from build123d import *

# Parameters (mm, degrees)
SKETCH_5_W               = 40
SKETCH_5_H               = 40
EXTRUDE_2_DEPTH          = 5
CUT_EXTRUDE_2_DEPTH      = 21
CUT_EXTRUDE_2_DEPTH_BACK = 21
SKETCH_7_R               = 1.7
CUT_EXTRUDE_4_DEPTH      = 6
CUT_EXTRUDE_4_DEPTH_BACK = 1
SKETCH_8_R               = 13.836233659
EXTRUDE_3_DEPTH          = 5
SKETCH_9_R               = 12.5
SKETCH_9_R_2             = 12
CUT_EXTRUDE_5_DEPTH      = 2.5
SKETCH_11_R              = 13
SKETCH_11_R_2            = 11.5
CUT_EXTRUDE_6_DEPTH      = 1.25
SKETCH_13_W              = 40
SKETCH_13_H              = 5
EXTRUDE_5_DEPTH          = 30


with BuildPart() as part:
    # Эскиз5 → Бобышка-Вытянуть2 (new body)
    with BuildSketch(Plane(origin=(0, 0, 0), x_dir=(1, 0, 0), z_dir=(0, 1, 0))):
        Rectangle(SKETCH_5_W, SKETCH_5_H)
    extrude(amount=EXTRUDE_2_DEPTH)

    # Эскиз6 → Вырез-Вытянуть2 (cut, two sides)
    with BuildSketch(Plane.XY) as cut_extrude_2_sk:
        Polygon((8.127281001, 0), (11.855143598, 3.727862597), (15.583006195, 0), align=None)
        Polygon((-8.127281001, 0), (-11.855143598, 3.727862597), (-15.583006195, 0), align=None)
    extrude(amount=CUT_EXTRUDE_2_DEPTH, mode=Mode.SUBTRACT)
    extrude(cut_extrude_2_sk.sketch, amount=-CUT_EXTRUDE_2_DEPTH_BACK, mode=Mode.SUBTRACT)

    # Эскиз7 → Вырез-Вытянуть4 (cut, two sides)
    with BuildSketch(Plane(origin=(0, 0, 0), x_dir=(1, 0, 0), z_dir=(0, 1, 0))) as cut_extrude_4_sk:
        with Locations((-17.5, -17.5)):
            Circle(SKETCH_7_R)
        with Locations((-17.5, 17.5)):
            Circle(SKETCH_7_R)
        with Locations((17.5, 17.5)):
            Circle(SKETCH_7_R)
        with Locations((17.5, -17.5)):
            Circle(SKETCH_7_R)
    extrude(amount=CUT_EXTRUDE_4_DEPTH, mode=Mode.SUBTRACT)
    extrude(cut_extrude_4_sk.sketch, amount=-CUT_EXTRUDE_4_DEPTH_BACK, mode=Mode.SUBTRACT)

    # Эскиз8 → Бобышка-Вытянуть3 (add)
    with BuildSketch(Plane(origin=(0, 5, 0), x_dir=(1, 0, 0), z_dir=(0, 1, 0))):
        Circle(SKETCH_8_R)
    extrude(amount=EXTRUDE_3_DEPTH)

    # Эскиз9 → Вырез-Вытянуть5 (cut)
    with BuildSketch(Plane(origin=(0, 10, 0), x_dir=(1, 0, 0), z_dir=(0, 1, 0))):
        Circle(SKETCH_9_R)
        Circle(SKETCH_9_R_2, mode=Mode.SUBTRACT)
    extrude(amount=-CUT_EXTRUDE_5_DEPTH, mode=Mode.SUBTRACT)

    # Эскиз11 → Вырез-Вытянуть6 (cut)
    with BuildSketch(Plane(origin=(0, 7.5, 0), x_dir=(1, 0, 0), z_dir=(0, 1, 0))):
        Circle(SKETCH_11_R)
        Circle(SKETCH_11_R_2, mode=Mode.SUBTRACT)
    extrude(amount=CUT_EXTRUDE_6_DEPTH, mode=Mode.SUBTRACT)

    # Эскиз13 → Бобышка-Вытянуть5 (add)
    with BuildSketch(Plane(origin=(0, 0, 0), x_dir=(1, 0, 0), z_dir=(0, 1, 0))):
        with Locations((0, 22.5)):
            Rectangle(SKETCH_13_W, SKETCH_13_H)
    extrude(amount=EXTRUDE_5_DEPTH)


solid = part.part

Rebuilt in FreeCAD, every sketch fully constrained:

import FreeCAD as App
import Part
import Sketcher
Q = App.Units.Quantity

doc = App.newDocument("Part")
body = doc.addObject("PartDesign::Body", "Body")

sketch1 = body.newObject("Sketcher::SketchObject", "Sketch")
sketch1.AttachmentSupport = (doc.getObject("XZ_Plane"), [""])
sketch1.MapMode = "FlatFace"
sketch1.addGeometry([
    Part.LineSegment(App.Vector(-20, -20, 0), App.Vector(-20, 20, 0)),
    Part.LineSegment(App.Vector(-20, 20, 0), App.Vector(20, 20, 0)),
    Part.LineSegment(App.Vector(20, 20, 0), App.Vector(20, -20, 0)),
    Part.LineSegment(App.Vector(20, -20, 0), App.Vector(-20, -20, 0)),
], False)
sketch1.addConstraint([
    Sketcher.Constraint("Coincident", 0, 2, 1, 1),
    Sketcher.Constraint("Coincident", 1, 2, 2, 1),
    Sketcher.Constraint("Coincident", 2, 2, 3, 1),
    Sketcher.Constraint("Coincident", 3, 2, 0, 1),
    Sketcher.Constraint("Vertical", 0),
    Sketcher.Constraint("Horizontal", 1),
    Sketcher.Constraint("Vertical", 2),
    Sketcher.Constraint("Horizontal", 3),
    Sketcher.Constraint("Symmetric", 0, 2, 2, 2, -1, 1),
    Sketcher.Constraint("Equal", 3, 0),
    Sketcher.Constraint("DistanceX", 1, 1, 1, 2, Q("40 mm")),
])
pad1 = body.newObject("PartDesign::Pad", "Pad")
pad1.Profile = sketch1
pad1.Length = 5
pad1.Reversed = True

sketch2 = body.newObject("Sketcher::SketchObject", "Sketch001")
sketch2.AttachmentSupport = (doc.getObject("XY_Plane"), [""])
sketch2.MapMode = "FlatFace"
sketch2.addGeometry([
    Part.LineSegment(App.Vector(11.855144, 3.727863, 0), App.Vector(8.127281, 0, 0)),
    Part.LineSegment(App.Vector(8.127281, 0, 0), App.Vector(15.583006, 0, 0)),
    Part.LineSegment(App.Vector(15.583006, 0, 0), App.Vector(11.855144, 3.727863, 0)),
    Part.LineSegment(App.Vector(-8.127281, 0, 0), App.Vector(-11.855144, 3.727863, 0)),
    Part.LineSegment(App.Vector(-11.855144, 3.727863, 0), App.Vector(-15.583006, 0, 0)),
    Part.LineSegment(App.Vector(-15.583006, 0, 0), App.Vector(-8.127281, 0, 0)),
], False)
sketch2.addConstraint([
    Sketcher.Constraint("Coincident", 0, 2, 1, 1),
    Sketcher.Constraint("Coincident", 1, 2, 2, 1),
    Sketcher.Constraint("Coincident", 2, 2, 0, 1),
    Sketcher.Constraint("Coincident", 3, 2, 4, 1),
    Sketcher.Constraint("Coincident", 4, 2, 5, 1),
    Sketcher.Constraint("Coincident", 5, 2, 3, 1),
    Sketcher.Constraint("Horizontal", 1),
    Sketcher.Constraint("Horizontal", 5),
    Sketcher.Constraint("Symmetric", 1, 2, 4, 2, -1, 1),
    Sketcher.Constraint("Symmetric", 2, 2, 3, 2, -2),
    Sketcher.Constraint("Symmetric", 0, 2, 5, 2, -2),
    Sketcher.Constraint("Perpendicular", 0, 2),
    Sketcher.Constraint("Parallel", 2, 3),
    Sketcher.Constraint("DistanceX", 1, 1, 1, 2, Q("7.455725 mm")),
    Sketcher.Constraint("DistanceX", -1, 1, 0, 2, Q("8.127281 mm")),
])
pocket1 = body.newObject("PartDesign::Pocket", "Pocket")
pocket1.Profile = sketch2
pocket1.Type = "ThroughAll"
pocket1.Midplane = True

sketch3 = body.newObject("Sketcher::SketchObject", "Sketch002")
sketch3.AttachmentSupport = (doc.getObject("XZ_Plane"), [""])
sketch3.MapMode = "FlatFace"
sketch3.addGeometry([
    Part.Circle(App.Vector(-17.5, 17.5, 0), App.Vector(0, 0, 1), 1.7),
    Part.Circle(App.Vector(-17.5, -17.5, 0), App.Vector(0, 0, 1), 1.7),
    Part.Circle(App.Vector(17.5, -17.5, 0), App.Vector(0, 0, 1), 1.7),
    Part.Circle(App.Vector(17.5, 17.5, 0), App.Vector(0, 0, 1), 1.7),
], False)
sketch3.addConstraint([
    Sketcher.Constraint("Equal", 0, 1),
    Sketcher.Constraint("Equal", 1, 2),
    Sketcher.Constraint("Equal", 2, 3),
    Sketcher.Constraint("Symmetric", 0, 3, 2, 3, -1, 1),
    Sketcher.Constraint("Symmetric", 1, 3, 3, 3, -1, 1),
    Sketcher.Constraint("Symmetric", 1, 3, 2, 3, -2),
    Sketcher.Constraint("Diameter", 0, Q("3.4 mm")),
    Sketcher.Constraint("DistanceY", 1, 3, 0, 3, Q("35 mm")),
    Sketcher.Constraint("DistanceX", 1, 3, 2, 3, Q("35 mm")),
])
pocket2 = body.newObject("PartDesign::Pocket", "Pocket001")
pocket2.Profile = sketch3
pocket2.Type = "ThroughAll"
pocket2.Midplane = True

sketch4 = body.newObject("Sketcher::SketchObject", "Sketch003")
sketch4.AttachmentSupport = (doc.getObject("XZ_Plane"), [""])
sketch4.MapMode = "FlatFace"
sketch4.AttachmentOffset = App.Placement(App.Vector(0, 0, -5), App.Rotation())
sketch4.addGeometry(Part.Circle(App.Vector(0, 0, 0), App.Vector(0, 0, 1), 13.836234), False)
sketch4.addConstraint([
    Sketcher.Constraint("Coincident", 0, 3, -1, 1),
    Sketcher.Constraint("Diameter", 0, Q("27.672467 mm")),
])
pad2 = body.newObject("PartDesign::Pad", "Pad001")
pad2.Profile = sketch4
pad2.Length = 5
pad2.Reversed = True

sketch5 = body.newObject("Sketcher::SketchObject", "Sketch004")
sketch5.AttachmentSupport = (doc.getObject("XZ_Plane"), [""])
sketch5.MapMode = "FlatFace"
sketch5.AttachmentOffset = App.Placement(App.Vector(0, 0, -10), App.Rotation())
sketch5.addGeometry([
    Part.Circle(App.Vector(0, 0, 0), App.Vector(0, 0, 1), 12.5),
    Part.Circle(App.Vector(0, 0, 0), App.Vector(0, 0, 1), 12),
], False)
sketch5.addConstraint([
    Sketcher.Constraint("Coincident", 0, 3, -1, 1),
    Sketcher.Constraint("Coincident", 1, 3, -1, 1),
    Sketcher.Constraint("Diameter", 0, Q("25 mm")),
    Sketcher.Constraint("Diameter", 1, Q("24 mm")),
])
pocket3 = body.newObject("PartDesign::Pocket", "Pocket002")
pocket3.Profile = sketch5
pocket3.Length = 2.5
pocket3.Reversed = True

sketch6 = body.newObject("Sketcher::SketchObject", "Sketch005")
sketch6.AttachmentSupport = (doc.getObject("XZ_Plane"), [""])
sketch6.MapMode = "FlatFace"
sketch6.AttachmentOffset = App.Placement(App.Vector(0, 0, -7.5), App.Rotation())
sketch6.addGeometry([
    Part.Circle(App.Vector(0, 0, 0), App.Vector(0, 0, 1), 13),
    Part.Circle(App.Vector(0, 0, 0), App.Vector(0, 0, 1), 11.5),
], False)
sketch6.addConstraint([
    Sketcher.Constraint("Coincident", 0, 3, -1, 1),
    Sketcher.Constraint("Coincident", 1, 3, -1, 1),
    Sketcher.Constraint("Diameter", 0, Q("26 mm")),
    Sketcher.Constraint("Diameter", 1, Q("23 mm")),
])
pocket4 = body.newObject("PartDesign::Pocket", "Pocket003")
pocket4.Profile = sketch6
pocket4.Length = 1.25

sketch7 = body.newObject("Sketcher::SketchObject", "Sketch006")
sketch7.AttachmentSupport = (doc.getObject("XZ_Plane"), [""])
sketch7.MapMode = "FlatFace"
sketch7.addGeometry([
    Part.LineSegment(App.Vector(-20, -25, 0), App.Vector(-20, -20, 0)),
    Part.LineSegment(App.Vector(-20, -20, 0), App.Vector(20, -20, 0)),
    Part.LineSegment(App.Vector(20, -20, 0), App.Vector(20, -25, 0)),
    Part.LineSegment(App.Vector(20, -25, 0), App.Vector(-20, -25, 0)),
], False)
sketch7.addConstraint([
    Sketcher.Constraint("Coincident", 0, 2, 1, 1),
    Sketcher.Constraint("Coincident", 1, 2, 2, 1),
    Sketcher.Constraint("Coincident", 2, 2, 3, 1),
    Sketcher.Constraint("Coincident", 3, 2, 0, 1),
    Sketcher.Constraint("Vertical", 0),
    Sketcher.Constraint("Horizontal", 1),
    Sketcher.Constraint("Vertical", 2),
    Sketcher.Constraint("Horizontal", 3),
    Sketcher.Constraint("DistanceX", 1, 1, 1, 2, Q("40 mm")),
    Sketcher.Constraint("DistanceY", 0, 1, 0, 2, Q("5 mm")),
    Sketcher.Constraint("DistanceX", 0, 2, -1, 1, Q("20 mm")),
    Sketcher.Constraint("DistanceY", 0, 2, -1, 1, Q("20 mm")),
])
pad3 = body.newObject("PartDesign::Pad", "Pad002")
pad3.Profile = sketch7
pad3.Length = 30
pad3.Reversed = True

doc.recompute()
